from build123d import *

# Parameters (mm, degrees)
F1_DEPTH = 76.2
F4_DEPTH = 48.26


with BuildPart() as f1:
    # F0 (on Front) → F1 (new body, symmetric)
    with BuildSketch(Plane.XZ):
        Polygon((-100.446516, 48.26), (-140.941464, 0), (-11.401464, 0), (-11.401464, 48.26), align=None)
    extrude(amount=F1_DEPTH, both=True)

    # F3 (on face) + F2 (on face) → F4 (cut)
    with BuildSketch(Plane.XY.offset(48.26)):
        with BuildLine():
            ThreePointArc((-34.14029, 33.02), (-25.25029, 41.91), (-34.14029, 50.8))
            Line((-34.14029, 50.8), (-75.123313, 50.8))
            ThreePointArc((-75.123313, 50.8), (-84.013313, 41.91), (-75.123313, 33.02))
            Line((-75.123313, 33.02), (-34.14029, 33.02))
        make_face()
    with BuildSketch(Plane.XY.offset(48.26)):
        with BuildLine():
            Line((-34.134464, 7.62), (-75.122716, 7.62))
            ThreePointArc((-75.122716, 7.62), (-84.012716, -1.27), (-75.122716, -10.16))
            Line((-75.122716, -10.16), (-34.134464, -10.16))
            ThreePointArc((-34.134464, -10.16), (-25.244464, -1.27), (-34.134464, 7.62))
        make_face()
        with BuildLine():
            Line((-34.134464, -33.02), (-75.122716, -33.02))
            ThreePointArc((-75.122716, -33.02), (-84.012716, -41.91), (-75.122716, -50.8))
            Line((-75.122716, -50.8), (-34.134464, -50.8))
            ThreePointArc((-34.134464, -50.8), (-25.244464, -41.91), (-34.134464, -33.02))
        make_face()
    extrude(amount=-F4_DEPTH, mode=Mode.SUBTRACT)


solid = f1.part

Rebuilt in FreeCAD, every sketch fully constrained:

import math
import FreeCAD as App
import Part
import Sketcher
Q = App.Units.Quantity

doc = App.newDocument("Part")
body = doc.addObject("PartDesign::Body", "Body")

sketch1 = doc.addObject("Sketcher::SketchObject", "Sketch")
body.addObject(sketch1)
sketch1.AttachmentSupport = (doc.XZ_Plane, [""])
sketch1.MapMode = "FlatFace"
sketch1.addGeometry([
    Part.LineSegment(App.Vector(-100, 48, 0), App.Vector(-141, 0, 0)),
    Part.LineSegment(App.Vector(-141, 0, 0), App.Vector(-11, 0, 0)),
    Part.LineSegment(App.Vector(-11, 0, 0), App.Vector(-11, 48, 0)),
    Part.LineSegment(App.Vector(-11, 48, 0), App.Vector(-100, 48, 0)),
], False)
sketch1.addConstraint([
    Sketcher.Constraint("Coincident", 0, 2, 1, 1),
    Sketcher.Constraint("Coincident", 1, 2, 2, 1),
    Sketcher.Constraint("Coincident", 2, 2, 3, 1),
    Sketcher.Constraint("Coincident", 3, 2, 0, 1),
    Sketcher.Constraint("Horizontal", 1),
    Sketcher.Constraint("Vertical", 2),
    Sketcher.Constraint("Horizontal", 3),
    Sketcher.Constraint("PointOnObject", 0, 2, -1),
    Sketcher.Constraint("DistanceX", 1, 1, 1, 2, Q("5.1 in")),
    Sketcher.Constraint("DistanceY", 2, 1, 2, 2, Q("1.9 in")),
    Sketcher.Constraint("Angle", 0, Q("-130 deg")),
    Sketcher.Constraint("DistanceX", 0, 2, -1, 1, Q("140.941464 mm")),
])
pad1 = doc.addObject("PartDesign::Pad", "Pad")
body.addObject(pad1)
pad1.Profile = sketch1
pad1.Length = Q("6 in")
pad1.Midplane = True

sketch2 = doc.addObject("Sketcher::SketchObject", "Sketch001")
body.addObject(sketch2)
sketch2.AttachmentSupport = (doc.XY_Plane, [""])
sketch2.MapMode = "FlatFace"
sketch2.AttachmentOffset = App.Placement(App.Vector(0, 0, 1.9 * 25.4), App.Rotation())
sketch2.addGeometry([
    Part.ArcOfCircle(Part.Circle(App.Vector(-34, 42, 0), App.Vector(0, 0, 1), 9), math.radians(-90), math.radians(90)),
    Part.LineSegment(App.Vector(-34, 51, 0), App.Vector(-75, 51, 0)),
    Part.ArcOfCircle(Part.Circle(App.Vector(-75, 42, 0), App.Vector(0, 0, 1), 9), math.radians(90), math.radians(270)),
    Part.LineSegment(App.Vector(-75, 33, 0), App.Vector(-34, 33, 0)),
    Part.LineSegment(App.Vector(-34, 8, 0), App.Vector(-75, 8, 0)),
    Part.ArcOfCircle(Part.Circle(App.Vector(-75, -1, 0), App.Vector(0, 0, 1), 9), math.radians(90), math.radians(270)),
    Part.LineSegment(App.Vector(-75, -10, 0), App.Vector(-34, -10, 0)),
    Part.ArcOfCircle(Part.Circle(App.Vector(-34, -1, 0), App.Vector(0, 0, 1), 9), math.radians(-90), math.radians(90)),
    Part.LineSegment(App.Vector(-34, -33, 0), App.Vector(-75, -33, 0)),
    Part.ArcOfCircle(Part.Circle(App.Vector(-75, -42, 0), App.Vector(0, 0, 1), 9), math.radians(90), math.radians(270)),
    Part.LineSegment(App.Vector(-75, -51, 0), App.Vector(-34, -51, 0)),
    Part.ArcOfCircle(Part.Circle(App.Vector(-34, -42, 0), App.Vector(0, 0, 1), 9), math.radians(-90), math.radians(90)),
], False)
sketch2.addConstraint([
    Sketcher.Constraint("Tangent", 0, 2, 1, 1),
    Sketcher.Constraint("Tangent", 1, 2, 2, 1),
    Sketcher.Constraint("Tangent", 2, 2, 3, 1),
    Sketcher.Constraint("Tangent", 3, 2, 0, 1),
    Sketcher.Constraint("Tangent", 4, 2, 5, 1),
    Sketcher.Constraint("Tangent", 5, 2, 6, 1),
    Sketcher.Constraint("Tangent", 6, 2, 7, 1),
    Sketcher.Constraint("Tangent", 7, 2, 4, 1),
    Sketcher.Constraint("Tangent", 8, 2, 9, 1),
    Sketcher.Constraint("Tangent", 9, 2, 10, 1),
    Sketcher.Constraint("Tangent", 10, 2, 11, 1),
    Sketcher.Constraint("Tangent", 11, 2, 8, 1),
    Sketcher.Constraint("Horizontal", 1),
    Sketcher.Constraint("Horizontal", 3),
    Sketcher.Constraint("Horizontal", 4),
    Sketcher.Constraint("Horizontal", 6),
    Sketcher.Constraint("Horizontal", 8),
    Sketcher.Constraint("Horizontal", 10),
    Sketcher.Constraint("Equal", 2, 5),
    Sketcher.Constraint("Equal", 7, 9),
    Sketcher.Constraint("Vertical", 5, 3, 9, 3),
    Sketcher.Constraint("Vertical", 7, 3, 11, 3),
    Sketcher.Constraint("Radius", 0, Q("0.35 in")),
    Sketcher.Constraint("DistanceY", -1, 1, 0, 2, Q("2 in")),
    Sketcher.Constraint("DistanceY", 9, 2, -1, 1, Q("2 in")),
    Sketcher.Constraint("DistanceY", 4, 2, 2, 2, Q("1 in")),
    Sketcher.Constraint("DistanceX", 4, 2, 4, 1, Q("40.988252 mm")),
    Sketcher.Constraint("DistanceX", 1, 2, 1, 1, Q("40.983023 mm")),
    Sketcher.Constraint("DistanceX", 0, 3, -1, 1, Q("34.14029 mm")),
    Sketcher.Constraint("DistanceX", 2, 3, 7, 3, Q("40.988849 mm")),
])
pocket1 = doc.addObject("PartDesign::Pocket", "Pocket")
body.addObject(pocket1)
pocket1.Profile = sketch2
pocket1.Length = Q("1.9 in")

doc.recompute()
